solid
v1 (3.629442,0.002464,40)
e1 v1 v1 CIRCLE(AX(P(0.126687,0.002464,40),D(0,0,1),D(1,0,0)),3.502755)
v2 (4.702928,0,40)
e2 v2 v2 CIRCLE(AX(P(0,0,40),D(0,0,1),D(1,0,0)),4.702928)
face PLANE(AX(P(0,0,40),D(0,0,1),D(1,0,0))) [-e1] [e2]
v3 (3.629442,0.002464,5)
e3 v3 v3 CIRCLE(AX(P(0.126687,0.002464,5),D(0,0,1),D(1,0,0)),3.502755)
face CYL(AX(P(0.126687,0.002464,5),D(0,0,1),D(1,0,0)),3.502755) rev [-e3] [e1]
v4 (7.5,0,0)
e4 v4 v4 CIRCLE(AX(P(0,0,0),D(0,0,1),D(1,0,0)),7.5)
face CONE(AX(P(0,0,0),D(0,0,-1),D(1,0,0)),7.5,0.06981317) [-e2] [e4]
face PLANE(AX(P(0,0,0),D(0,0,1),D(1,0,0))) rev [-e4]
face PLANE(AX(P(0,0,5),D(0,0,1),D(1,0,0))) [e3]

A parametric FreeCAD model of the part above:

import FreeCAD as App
import Part
import Sketcher
from FreeCAD import Vector

doc = App.newDocument("Part")
body = doc.addObject("PartDesign::Body", "Body")

sketch1 = doc.addObject("Sketcher::SketchObject", "Sketch")
body.addObject(sketch1)
sketch1.AttachmentSupport = (doc.XY_Plane, [""])
sketch1.MapMode = "FlatFace"
sketch1.addGeometry(Part.Circle(Vector(0, 0, 0), Vector(0, 0, 1), 8), False)
sketch1.addConstraint([
    Sketcher.Constraint("Coincident", 0, 3, -1, 1),
    Sketcher.Constraint("Diameter", 0, 15.0),
])
pad1 = doc.addObject("PartDesign::Pad", "Pad")
body.addObject(pad1)
pad1.Profile = sketch1
pad1.Length = 40
pad1.TaperAngle = -4

sketch2 = doc.addObject("Sketcher::SketchObject", "Sketch001")
body.addObject(sketch2)
sketch2.AttachmentSupport = (doc.XY_Plane, [""])
sketch2.MapMode = "FlatFace"
sketch2.AttachmentOffset = App.Placement(Vector(0, 0, 40), App.Rotation())
sketch2.addGeometry(Part.Circle(Vector(0.1, 0, 0), Vector(0, 0, 1), 3.5), False)
sketch2.addConstraint([
    Sketcher.Constraint("Diameter", 0, 7.00551),
    Sketcher.Constraint("DistanceX", -1, 1, 0, 3, 0.126687),
    Sketcher.Constraint("DistanceY", -1, 1, 0, 3, 0.002464),
])
pocket1 = doc.addObject("PartDesign::Pocket", "Pocket")
body.addObject(pocket1)
pocket1.Profile = sketch2
pocket1.Length = 35

doc.recompute()
